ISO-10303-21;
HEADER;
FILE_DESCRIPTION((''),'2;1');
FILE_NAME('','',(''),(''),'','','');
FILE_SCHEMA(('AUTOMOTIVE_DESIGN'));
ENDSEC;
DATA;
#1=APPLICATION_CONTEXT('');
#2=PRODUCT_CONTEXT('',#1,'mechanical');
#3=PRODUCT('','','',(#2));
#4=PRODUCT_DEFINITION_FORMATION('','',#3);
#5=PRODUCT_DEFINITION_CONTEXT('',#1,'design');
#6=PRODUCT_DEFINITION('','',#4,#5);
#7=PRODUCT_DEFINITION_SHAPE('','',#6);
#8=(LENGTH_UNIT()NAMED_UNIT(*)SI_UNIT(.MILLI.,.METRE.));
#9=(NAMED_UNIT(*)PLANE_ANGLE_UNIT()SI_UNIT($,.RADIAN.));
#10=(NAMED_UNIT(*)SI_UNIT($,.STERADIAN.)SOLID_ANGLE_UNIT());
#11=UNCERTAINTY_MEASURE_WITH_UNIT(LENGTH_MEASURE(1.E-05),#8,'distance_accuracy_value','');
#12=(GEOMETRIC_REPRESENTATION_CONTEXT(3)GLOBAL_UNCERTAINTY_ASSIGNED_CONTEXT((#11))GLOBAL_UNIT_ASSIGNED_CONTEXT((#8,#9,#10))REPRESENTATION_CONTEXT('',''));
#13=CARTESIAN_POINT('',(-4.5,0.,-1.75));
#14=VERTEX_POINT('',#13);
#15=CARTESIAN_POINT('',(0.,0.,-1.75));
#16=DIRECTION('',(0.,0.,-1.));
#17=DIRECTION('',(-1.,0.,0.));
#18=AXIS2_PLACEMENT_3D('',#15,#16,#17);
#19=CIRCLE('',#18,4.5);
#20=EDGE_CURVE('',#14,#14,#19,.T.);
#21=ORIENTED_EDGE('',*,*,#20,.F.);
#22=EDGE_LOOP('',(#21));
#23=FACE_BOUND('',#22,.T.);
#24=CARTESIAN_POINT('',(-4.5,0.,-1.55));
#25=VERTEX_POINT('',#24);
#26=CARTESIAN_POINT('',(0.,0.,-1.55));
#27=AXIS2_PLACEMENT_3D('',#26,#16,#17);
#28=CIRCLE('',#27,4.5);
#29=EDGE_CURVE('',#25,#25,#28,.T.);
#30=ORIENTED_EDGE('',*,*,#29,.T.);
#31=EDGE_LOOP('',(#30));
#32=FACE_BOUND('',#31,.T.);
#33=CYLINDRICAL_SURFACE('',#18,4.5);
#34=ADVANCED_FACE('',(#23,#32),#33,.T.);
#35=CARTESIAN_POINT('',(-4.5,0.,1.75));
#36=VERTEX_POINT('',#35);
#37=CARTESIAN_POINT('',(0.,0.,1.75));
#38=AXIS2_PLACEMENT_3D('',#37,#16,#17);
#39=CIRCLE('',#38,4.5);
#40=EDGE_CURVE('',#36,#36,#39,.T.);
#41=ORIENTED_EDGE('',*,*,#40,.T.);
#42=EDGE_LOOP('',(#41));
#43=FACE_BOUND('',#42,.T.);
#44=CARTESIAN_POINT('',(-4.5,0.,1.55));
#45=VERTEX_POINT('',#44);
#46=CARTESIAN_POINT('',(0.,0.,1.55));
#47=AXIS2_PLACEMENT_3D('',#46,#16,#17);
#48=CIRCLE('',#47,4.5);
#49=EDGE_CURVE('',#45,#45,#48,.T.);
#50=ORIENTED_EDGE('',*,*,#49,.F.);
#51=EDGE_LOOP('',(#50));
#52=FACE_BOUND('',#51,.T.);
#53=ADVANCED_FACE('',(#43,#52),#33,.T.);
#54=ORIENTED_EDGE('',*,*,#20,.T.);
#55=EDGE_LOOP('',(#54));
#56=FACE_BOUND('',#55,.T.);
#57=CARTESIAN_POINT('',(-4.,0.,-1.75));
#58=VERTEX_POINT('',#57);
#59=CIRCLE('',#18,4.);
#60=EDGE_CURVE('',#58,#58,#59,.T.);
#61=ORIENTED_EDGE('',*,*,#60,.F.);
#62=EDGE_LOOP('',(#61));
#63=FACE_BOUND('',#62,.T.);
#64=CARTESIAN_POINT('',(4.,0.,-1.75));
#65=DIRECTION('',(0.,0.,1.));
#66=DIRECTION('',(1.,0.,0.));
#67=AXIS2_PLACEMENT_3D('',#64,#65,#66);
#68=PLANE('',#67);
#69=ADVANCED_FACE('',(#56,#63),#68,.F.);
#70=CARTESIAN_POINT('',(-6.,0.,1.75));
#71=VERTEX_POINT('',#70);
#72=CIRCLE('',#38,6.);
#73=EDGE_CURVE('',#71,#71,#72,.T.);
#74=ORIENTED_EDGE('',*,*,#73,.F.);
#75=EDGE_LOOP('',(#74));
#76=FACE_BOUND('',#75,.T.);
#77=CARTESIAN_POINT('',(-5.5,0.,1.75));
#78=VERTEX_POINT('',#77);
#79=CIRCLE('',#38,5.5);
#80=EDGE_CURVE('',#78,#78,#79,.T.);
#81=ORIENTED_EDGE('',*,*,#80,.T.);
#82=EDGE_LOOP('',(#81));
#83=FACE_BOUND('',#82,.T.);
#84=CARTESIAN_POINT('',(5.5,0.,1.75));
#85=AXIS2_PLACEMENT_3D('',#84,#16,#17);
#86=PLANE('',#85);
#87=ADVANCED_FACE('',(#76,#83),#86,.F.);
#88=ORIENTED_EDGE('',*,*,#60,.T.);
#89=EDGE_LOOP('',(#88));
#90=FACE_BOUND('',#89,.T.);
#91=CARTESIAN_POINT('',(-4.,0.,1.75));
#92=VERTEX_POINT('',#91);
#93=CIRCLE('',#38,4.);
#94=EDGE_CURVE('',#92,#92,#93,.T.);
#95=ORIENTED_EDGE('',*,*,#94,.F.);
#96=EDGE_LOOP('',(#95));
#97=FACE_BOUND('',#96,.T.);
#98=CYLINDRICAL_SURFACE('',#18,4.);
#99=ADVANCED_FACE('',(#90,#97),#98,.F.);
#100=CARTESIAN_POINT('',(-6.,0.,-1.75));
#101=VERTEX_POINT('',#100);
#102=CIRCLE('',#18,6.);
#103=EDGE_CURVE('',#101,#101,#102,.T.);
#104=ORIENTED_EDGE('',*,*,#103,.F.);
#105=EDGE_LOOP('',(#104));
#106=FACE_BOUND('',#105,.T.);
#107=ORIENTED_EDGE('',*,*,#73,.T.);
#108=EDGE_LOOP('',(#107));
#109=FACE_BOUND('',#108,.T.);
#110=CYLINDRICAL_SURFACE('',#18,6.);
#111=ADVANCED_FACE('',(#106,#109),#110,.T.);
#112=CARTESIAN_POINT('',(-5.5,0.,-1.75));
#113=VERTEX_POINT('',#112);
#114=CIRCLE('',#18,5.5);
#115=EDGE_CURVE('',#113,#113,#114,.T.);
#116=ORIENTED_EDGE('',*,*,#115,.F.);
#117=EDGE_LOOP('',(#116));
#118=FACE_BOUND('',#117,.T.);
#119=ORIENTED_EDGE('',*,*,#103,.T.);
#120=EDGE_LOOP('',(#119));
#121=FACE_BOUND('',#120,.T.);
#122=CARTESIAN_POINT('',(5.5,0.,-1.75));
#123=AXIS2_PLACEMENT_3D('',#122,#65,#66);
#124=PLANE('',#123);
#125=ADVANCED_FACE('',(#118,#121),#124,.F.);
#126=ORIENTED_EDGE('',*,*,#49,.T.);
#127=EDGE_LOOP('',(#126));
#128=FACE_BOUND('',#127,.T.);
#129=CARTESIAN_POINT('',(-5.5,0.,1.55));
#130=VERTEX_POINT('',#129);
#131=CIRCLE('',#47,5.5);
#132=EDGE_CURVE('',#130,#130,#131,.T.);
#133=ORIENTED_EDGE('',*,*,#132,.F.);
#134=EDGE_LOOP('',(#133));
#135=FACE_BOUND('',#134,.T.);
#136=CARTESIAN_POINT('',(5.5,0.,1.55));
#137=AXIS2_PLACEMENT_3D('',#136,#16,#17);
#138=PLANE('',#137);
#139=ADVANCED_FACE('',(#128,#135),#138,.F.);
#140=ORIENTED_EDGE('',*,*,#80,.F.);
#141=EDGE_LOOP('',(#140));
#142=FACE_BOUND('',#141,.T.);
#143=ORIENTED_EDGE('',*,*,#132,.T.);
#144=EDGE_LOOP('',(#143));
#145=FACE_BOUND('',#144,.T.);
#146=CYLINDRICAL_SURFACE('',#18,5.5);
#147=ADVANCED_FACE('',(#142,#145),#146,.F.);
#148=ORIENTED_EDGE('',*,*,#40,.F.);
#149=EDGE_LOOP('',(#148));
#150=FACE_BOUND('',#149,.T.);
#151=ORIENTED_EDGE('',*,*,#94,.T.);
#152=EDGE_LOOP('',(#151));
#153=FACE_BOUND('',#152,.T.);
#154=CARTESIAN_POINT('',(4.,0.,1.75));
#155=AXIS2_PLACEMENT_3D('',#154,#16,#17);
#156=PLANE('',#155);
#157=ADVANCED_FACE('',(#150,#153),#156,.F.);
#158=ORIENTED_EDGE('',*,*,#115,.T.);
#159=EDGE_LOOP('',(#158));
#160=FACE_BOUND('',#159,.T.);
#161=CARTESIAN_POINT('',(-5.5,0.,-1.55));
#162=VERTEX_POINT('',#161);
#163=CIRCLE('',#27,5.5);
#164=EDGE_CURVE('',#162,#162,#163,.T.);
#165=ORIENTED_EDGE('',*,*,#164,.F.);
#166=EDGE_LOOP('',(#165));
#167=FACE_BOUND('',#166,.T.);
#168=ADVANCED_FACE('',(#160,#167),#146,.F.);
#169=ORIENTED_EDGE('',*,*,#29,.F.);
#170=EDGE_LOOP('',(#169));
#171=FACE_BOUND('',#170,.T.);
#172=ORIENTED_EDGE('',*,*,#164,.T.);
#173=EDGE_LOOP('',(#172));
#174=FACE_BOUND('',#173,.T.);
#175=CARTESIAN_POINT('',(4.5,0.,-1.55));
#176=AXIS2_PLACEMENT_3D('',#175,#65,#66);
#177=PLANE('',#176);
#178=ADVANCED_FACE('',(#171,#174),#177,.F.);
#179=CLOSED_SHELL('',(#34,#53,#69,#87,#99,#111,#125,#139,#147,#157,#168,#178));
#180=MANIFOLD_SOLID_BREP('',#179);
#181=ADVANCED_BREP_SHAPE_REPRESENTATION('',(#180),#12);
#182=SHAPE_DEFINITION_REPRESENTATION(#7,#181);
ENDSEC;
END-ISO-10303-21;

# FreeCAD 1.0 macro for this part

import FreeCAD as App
import Part
import Sketcher
from FreeCAD import Vector


def add_polygon(sketch, points):
    """Adds a closed chain of lines whose ends are joined by coincident constraints."""
    first, n = sketch.GeometryCount, len(points)
    for a, b in zip(points, points[1:] + points[:1]):
        sketch.addGeometry(Part.LineSegment(App.Vector(*a, 0), App.Vector(*b, 0)), False)
    for i in range(n):
        sketch.addConstraint(Sketcher.Constraint("Coincident", first + i, 2, first + (i + 1) % n, 1))

doc = App.newDocument("Part")
body = doc.addObject("PartDesign::Body", "Body")

# Sketch on XZ plane
sketch1 = body.newObject("Sketcher::SketchObject", "Sketch")
sketch1.AttachmentSupport = (doc.getObject("XZ_Plane"), [""])
sketch1.MapMode = "FlatFace"
add_polygon(sketch1, [(6, -1.75), (5.5, -1.75), (5.5, -1.55), (4.5, -1.55), (4.5, -1.75), (4, -1.75), (4, 1.75), (4.5, 1.75), (4.5, 1.55), (5.5, 1.55), (5.5, 1.75), (6, 1.75)])  # lines 0-11
sketch1.addConstraint([
    Sketcher.Constraint("Horizontal", 0),
    Sketcher.Constraint("Vertical", 1),
    Sketcher.Constraint("Horizontal", 2),
    Sketcher.Constraint("Vertical", 3),
    Sketcher.Constraint("Horizontal", 4),
    Sketcher.Constraint("Vertical", 5),
    Sketcher.Constraint("Horizontal", 6),
    Sketcher.Constraint("Vertical", 7),
    Sketcher.Constraint("Horizontal", 8),
    Sketcher.Constraint("Vertical", 9),
    Sketcher.Constraint("Horizontal", 10),
    Sketcher.Constraint("Vertical", 11),
    Sketcher.Constraint("Symmetric", 3, 2, 6, 2, -1),
    Sketcher.Constraint("Symmetric", 1, 2, 8, 2, -1),
    Sketcher.Constraint("Horizontal", 0, 2, 3, 2),
    Sketcher.Constraint("Horizontal", 6, 2, 9, 2),
    Sketcher.Constraint("Equal", 0, 4),
    Sketcher.Constraint("DistanceX", 2, 2, 2, 1, 1.0),
    Sketcher.Constraint("DistanceX", 0, 2, 0, 1, 0.5),
    Sketcher.Constraint("DistanceY", 1, 1, 1, 2, 0.2),
    Sketcher.Constraint("DistanceY", 5, 1, 5, 2, 3.5),
    Sketcher.Constraint("DistanceX", -1, 1, 4, 2, 4.0),
])
revolution = body.newObject("PartDesign::Revolution", "Revolution")
revolution.Profile = sketch1
revolution.ReferenceAxis = (sketch1, ["V_Axis"])
revolution.Angle = 360

doc.recompute()
